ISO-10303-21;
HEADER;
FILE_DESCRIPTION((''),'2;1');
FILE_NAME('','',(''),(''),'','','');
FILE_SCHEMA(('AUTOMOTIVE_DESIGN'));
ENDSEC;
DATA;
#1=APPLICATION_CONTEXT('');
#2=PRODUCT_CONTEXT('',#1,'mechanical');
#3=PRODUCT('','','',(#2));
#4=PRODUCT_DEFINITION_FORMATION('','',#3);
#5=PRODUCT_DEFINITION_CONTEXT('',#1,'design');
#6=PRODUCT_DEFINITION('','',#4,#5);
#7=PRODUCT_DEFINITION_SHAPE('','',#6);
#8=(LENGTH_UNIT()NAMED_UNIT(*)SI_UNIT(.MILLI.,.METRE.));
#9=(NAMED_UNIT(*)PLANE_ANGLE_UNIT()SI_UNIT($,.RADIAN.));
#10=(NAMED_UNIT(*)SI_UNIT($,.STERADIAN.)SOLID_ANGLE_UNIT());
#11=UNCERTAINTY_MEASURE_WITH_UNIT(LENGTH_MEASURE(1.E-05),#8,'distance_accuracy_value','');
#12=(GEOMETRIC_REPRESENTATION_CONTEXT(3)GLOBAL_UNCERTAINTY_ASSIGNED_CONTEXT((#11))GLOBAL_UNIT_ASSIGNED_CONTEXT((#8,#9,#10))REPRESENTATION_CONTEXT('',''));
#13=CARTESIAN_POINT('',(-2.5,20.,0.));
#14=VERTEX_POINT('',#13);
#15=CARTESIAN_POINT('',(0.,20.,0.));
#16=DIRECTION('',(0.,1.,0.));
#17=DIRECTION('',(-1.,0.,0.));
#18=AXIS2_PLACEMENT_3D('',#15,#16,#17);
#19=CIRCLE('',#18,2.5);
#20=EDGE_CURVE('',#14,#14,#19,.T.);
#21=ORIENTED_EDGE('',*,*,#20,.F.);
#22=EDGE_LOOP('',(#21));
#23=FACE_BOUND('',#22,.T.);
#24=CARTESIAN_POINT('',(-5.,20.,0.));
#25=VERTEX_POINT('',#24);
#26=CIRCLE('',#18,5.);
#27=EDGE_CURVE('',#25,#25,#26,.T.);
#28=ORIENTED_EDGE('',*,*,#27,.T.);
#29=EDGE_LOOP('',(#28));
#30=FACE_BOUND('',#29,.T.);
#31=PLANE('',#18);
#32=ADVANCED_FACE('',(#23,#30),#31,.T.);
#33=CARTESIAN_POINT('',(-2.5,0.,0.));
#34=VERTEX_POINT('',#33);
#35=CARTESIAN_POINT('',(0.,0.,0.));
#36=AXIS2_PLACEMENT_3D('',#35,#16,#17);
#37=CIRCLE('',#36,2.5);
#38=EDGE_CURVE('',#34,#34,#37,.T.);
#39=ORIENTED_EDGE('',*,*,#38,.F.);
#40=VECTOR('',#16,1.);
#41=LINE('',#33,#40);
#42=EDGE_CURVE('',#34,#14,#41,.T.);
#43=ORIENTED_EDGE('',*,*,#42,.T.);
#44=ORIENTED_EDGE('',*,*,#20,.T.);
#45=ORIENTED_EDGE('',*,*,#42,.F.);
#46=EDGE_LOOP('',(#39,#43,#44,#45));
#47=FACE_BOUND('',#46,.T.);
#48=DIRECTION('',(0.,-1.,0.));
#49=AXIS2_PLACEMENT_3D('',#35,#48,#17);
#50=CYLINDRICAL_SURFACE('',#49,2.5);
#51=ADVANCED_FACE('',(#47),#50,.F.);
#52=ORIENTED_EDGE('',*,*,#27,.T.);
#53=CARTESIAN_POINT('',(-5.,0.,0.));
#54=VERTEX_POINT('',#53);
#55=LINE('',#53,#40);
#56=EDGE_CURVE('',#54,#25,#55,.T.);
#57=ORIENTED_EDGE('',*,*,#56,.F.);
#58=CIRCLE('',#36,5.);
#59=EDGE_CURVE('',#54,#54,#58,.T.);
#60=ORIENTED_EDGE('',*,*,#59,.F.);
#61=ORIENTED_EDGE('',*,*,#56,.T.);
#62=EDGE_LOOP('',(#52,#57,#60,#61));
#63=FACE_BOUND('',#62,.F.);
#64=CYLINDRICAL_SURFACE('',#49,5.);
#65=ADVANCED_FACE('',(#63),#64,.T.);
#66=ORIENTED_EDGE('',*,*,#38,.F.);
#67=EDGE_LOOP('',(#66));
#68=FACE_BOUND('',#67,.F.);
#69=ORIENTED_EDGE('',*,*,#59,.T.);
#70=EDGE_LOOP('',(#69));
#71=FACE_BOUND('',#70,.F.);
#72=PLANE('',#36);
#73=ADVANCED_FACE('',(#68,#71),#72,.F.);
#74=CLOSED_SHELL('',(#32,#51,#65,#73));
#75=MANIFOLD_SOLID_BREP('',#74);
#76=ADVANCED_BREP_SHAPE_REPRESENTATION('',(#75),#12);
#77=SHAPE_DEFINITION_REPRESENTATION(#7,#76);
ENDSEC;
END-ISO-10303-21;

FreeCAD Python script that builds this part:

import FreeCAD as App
import Part
import Sketcher

doc = App.newDocument("Part")
body = doc.addObject("PartDesign::Body", "Body")

# Sketch on XZ plane
sketch1 = doc.addObject("Sketcher::SketchObject", "Sketch")
body.addObject(sketch1)
sketch1.AttachmentSupport = (doc.XZ_Plane, [""])
sketch1.MapMode = "FlatFace"
sketch1.addGeometry([
    Part.Circle(App.Vector(0, 0, 0), App.Vector(0, 0, 1), 5),
    Part.Circle(App.Vector(0, 0, 0), App.Vector(0, 0, 1), 2.5),
], False)
sketch1.addConstraint([
    Sketcher.Constraint("Coincident", 0, 3, -1, 1),
    Sketcher.Constraint("Coincident", 1, 3, -1, 1),
    Sketcher.Constraint("Diameter", 0, 10.0),
    Sketcher.Constraint("Diameter", 1, 5.0),
])
pad1 = doc.addObject("PartDesign::Pad", "Pad")
body.addObject(pad1)
pad1.Profile = sketch1
pad1.Length = 20
pad1.Reversed = True

doc.recompute()
